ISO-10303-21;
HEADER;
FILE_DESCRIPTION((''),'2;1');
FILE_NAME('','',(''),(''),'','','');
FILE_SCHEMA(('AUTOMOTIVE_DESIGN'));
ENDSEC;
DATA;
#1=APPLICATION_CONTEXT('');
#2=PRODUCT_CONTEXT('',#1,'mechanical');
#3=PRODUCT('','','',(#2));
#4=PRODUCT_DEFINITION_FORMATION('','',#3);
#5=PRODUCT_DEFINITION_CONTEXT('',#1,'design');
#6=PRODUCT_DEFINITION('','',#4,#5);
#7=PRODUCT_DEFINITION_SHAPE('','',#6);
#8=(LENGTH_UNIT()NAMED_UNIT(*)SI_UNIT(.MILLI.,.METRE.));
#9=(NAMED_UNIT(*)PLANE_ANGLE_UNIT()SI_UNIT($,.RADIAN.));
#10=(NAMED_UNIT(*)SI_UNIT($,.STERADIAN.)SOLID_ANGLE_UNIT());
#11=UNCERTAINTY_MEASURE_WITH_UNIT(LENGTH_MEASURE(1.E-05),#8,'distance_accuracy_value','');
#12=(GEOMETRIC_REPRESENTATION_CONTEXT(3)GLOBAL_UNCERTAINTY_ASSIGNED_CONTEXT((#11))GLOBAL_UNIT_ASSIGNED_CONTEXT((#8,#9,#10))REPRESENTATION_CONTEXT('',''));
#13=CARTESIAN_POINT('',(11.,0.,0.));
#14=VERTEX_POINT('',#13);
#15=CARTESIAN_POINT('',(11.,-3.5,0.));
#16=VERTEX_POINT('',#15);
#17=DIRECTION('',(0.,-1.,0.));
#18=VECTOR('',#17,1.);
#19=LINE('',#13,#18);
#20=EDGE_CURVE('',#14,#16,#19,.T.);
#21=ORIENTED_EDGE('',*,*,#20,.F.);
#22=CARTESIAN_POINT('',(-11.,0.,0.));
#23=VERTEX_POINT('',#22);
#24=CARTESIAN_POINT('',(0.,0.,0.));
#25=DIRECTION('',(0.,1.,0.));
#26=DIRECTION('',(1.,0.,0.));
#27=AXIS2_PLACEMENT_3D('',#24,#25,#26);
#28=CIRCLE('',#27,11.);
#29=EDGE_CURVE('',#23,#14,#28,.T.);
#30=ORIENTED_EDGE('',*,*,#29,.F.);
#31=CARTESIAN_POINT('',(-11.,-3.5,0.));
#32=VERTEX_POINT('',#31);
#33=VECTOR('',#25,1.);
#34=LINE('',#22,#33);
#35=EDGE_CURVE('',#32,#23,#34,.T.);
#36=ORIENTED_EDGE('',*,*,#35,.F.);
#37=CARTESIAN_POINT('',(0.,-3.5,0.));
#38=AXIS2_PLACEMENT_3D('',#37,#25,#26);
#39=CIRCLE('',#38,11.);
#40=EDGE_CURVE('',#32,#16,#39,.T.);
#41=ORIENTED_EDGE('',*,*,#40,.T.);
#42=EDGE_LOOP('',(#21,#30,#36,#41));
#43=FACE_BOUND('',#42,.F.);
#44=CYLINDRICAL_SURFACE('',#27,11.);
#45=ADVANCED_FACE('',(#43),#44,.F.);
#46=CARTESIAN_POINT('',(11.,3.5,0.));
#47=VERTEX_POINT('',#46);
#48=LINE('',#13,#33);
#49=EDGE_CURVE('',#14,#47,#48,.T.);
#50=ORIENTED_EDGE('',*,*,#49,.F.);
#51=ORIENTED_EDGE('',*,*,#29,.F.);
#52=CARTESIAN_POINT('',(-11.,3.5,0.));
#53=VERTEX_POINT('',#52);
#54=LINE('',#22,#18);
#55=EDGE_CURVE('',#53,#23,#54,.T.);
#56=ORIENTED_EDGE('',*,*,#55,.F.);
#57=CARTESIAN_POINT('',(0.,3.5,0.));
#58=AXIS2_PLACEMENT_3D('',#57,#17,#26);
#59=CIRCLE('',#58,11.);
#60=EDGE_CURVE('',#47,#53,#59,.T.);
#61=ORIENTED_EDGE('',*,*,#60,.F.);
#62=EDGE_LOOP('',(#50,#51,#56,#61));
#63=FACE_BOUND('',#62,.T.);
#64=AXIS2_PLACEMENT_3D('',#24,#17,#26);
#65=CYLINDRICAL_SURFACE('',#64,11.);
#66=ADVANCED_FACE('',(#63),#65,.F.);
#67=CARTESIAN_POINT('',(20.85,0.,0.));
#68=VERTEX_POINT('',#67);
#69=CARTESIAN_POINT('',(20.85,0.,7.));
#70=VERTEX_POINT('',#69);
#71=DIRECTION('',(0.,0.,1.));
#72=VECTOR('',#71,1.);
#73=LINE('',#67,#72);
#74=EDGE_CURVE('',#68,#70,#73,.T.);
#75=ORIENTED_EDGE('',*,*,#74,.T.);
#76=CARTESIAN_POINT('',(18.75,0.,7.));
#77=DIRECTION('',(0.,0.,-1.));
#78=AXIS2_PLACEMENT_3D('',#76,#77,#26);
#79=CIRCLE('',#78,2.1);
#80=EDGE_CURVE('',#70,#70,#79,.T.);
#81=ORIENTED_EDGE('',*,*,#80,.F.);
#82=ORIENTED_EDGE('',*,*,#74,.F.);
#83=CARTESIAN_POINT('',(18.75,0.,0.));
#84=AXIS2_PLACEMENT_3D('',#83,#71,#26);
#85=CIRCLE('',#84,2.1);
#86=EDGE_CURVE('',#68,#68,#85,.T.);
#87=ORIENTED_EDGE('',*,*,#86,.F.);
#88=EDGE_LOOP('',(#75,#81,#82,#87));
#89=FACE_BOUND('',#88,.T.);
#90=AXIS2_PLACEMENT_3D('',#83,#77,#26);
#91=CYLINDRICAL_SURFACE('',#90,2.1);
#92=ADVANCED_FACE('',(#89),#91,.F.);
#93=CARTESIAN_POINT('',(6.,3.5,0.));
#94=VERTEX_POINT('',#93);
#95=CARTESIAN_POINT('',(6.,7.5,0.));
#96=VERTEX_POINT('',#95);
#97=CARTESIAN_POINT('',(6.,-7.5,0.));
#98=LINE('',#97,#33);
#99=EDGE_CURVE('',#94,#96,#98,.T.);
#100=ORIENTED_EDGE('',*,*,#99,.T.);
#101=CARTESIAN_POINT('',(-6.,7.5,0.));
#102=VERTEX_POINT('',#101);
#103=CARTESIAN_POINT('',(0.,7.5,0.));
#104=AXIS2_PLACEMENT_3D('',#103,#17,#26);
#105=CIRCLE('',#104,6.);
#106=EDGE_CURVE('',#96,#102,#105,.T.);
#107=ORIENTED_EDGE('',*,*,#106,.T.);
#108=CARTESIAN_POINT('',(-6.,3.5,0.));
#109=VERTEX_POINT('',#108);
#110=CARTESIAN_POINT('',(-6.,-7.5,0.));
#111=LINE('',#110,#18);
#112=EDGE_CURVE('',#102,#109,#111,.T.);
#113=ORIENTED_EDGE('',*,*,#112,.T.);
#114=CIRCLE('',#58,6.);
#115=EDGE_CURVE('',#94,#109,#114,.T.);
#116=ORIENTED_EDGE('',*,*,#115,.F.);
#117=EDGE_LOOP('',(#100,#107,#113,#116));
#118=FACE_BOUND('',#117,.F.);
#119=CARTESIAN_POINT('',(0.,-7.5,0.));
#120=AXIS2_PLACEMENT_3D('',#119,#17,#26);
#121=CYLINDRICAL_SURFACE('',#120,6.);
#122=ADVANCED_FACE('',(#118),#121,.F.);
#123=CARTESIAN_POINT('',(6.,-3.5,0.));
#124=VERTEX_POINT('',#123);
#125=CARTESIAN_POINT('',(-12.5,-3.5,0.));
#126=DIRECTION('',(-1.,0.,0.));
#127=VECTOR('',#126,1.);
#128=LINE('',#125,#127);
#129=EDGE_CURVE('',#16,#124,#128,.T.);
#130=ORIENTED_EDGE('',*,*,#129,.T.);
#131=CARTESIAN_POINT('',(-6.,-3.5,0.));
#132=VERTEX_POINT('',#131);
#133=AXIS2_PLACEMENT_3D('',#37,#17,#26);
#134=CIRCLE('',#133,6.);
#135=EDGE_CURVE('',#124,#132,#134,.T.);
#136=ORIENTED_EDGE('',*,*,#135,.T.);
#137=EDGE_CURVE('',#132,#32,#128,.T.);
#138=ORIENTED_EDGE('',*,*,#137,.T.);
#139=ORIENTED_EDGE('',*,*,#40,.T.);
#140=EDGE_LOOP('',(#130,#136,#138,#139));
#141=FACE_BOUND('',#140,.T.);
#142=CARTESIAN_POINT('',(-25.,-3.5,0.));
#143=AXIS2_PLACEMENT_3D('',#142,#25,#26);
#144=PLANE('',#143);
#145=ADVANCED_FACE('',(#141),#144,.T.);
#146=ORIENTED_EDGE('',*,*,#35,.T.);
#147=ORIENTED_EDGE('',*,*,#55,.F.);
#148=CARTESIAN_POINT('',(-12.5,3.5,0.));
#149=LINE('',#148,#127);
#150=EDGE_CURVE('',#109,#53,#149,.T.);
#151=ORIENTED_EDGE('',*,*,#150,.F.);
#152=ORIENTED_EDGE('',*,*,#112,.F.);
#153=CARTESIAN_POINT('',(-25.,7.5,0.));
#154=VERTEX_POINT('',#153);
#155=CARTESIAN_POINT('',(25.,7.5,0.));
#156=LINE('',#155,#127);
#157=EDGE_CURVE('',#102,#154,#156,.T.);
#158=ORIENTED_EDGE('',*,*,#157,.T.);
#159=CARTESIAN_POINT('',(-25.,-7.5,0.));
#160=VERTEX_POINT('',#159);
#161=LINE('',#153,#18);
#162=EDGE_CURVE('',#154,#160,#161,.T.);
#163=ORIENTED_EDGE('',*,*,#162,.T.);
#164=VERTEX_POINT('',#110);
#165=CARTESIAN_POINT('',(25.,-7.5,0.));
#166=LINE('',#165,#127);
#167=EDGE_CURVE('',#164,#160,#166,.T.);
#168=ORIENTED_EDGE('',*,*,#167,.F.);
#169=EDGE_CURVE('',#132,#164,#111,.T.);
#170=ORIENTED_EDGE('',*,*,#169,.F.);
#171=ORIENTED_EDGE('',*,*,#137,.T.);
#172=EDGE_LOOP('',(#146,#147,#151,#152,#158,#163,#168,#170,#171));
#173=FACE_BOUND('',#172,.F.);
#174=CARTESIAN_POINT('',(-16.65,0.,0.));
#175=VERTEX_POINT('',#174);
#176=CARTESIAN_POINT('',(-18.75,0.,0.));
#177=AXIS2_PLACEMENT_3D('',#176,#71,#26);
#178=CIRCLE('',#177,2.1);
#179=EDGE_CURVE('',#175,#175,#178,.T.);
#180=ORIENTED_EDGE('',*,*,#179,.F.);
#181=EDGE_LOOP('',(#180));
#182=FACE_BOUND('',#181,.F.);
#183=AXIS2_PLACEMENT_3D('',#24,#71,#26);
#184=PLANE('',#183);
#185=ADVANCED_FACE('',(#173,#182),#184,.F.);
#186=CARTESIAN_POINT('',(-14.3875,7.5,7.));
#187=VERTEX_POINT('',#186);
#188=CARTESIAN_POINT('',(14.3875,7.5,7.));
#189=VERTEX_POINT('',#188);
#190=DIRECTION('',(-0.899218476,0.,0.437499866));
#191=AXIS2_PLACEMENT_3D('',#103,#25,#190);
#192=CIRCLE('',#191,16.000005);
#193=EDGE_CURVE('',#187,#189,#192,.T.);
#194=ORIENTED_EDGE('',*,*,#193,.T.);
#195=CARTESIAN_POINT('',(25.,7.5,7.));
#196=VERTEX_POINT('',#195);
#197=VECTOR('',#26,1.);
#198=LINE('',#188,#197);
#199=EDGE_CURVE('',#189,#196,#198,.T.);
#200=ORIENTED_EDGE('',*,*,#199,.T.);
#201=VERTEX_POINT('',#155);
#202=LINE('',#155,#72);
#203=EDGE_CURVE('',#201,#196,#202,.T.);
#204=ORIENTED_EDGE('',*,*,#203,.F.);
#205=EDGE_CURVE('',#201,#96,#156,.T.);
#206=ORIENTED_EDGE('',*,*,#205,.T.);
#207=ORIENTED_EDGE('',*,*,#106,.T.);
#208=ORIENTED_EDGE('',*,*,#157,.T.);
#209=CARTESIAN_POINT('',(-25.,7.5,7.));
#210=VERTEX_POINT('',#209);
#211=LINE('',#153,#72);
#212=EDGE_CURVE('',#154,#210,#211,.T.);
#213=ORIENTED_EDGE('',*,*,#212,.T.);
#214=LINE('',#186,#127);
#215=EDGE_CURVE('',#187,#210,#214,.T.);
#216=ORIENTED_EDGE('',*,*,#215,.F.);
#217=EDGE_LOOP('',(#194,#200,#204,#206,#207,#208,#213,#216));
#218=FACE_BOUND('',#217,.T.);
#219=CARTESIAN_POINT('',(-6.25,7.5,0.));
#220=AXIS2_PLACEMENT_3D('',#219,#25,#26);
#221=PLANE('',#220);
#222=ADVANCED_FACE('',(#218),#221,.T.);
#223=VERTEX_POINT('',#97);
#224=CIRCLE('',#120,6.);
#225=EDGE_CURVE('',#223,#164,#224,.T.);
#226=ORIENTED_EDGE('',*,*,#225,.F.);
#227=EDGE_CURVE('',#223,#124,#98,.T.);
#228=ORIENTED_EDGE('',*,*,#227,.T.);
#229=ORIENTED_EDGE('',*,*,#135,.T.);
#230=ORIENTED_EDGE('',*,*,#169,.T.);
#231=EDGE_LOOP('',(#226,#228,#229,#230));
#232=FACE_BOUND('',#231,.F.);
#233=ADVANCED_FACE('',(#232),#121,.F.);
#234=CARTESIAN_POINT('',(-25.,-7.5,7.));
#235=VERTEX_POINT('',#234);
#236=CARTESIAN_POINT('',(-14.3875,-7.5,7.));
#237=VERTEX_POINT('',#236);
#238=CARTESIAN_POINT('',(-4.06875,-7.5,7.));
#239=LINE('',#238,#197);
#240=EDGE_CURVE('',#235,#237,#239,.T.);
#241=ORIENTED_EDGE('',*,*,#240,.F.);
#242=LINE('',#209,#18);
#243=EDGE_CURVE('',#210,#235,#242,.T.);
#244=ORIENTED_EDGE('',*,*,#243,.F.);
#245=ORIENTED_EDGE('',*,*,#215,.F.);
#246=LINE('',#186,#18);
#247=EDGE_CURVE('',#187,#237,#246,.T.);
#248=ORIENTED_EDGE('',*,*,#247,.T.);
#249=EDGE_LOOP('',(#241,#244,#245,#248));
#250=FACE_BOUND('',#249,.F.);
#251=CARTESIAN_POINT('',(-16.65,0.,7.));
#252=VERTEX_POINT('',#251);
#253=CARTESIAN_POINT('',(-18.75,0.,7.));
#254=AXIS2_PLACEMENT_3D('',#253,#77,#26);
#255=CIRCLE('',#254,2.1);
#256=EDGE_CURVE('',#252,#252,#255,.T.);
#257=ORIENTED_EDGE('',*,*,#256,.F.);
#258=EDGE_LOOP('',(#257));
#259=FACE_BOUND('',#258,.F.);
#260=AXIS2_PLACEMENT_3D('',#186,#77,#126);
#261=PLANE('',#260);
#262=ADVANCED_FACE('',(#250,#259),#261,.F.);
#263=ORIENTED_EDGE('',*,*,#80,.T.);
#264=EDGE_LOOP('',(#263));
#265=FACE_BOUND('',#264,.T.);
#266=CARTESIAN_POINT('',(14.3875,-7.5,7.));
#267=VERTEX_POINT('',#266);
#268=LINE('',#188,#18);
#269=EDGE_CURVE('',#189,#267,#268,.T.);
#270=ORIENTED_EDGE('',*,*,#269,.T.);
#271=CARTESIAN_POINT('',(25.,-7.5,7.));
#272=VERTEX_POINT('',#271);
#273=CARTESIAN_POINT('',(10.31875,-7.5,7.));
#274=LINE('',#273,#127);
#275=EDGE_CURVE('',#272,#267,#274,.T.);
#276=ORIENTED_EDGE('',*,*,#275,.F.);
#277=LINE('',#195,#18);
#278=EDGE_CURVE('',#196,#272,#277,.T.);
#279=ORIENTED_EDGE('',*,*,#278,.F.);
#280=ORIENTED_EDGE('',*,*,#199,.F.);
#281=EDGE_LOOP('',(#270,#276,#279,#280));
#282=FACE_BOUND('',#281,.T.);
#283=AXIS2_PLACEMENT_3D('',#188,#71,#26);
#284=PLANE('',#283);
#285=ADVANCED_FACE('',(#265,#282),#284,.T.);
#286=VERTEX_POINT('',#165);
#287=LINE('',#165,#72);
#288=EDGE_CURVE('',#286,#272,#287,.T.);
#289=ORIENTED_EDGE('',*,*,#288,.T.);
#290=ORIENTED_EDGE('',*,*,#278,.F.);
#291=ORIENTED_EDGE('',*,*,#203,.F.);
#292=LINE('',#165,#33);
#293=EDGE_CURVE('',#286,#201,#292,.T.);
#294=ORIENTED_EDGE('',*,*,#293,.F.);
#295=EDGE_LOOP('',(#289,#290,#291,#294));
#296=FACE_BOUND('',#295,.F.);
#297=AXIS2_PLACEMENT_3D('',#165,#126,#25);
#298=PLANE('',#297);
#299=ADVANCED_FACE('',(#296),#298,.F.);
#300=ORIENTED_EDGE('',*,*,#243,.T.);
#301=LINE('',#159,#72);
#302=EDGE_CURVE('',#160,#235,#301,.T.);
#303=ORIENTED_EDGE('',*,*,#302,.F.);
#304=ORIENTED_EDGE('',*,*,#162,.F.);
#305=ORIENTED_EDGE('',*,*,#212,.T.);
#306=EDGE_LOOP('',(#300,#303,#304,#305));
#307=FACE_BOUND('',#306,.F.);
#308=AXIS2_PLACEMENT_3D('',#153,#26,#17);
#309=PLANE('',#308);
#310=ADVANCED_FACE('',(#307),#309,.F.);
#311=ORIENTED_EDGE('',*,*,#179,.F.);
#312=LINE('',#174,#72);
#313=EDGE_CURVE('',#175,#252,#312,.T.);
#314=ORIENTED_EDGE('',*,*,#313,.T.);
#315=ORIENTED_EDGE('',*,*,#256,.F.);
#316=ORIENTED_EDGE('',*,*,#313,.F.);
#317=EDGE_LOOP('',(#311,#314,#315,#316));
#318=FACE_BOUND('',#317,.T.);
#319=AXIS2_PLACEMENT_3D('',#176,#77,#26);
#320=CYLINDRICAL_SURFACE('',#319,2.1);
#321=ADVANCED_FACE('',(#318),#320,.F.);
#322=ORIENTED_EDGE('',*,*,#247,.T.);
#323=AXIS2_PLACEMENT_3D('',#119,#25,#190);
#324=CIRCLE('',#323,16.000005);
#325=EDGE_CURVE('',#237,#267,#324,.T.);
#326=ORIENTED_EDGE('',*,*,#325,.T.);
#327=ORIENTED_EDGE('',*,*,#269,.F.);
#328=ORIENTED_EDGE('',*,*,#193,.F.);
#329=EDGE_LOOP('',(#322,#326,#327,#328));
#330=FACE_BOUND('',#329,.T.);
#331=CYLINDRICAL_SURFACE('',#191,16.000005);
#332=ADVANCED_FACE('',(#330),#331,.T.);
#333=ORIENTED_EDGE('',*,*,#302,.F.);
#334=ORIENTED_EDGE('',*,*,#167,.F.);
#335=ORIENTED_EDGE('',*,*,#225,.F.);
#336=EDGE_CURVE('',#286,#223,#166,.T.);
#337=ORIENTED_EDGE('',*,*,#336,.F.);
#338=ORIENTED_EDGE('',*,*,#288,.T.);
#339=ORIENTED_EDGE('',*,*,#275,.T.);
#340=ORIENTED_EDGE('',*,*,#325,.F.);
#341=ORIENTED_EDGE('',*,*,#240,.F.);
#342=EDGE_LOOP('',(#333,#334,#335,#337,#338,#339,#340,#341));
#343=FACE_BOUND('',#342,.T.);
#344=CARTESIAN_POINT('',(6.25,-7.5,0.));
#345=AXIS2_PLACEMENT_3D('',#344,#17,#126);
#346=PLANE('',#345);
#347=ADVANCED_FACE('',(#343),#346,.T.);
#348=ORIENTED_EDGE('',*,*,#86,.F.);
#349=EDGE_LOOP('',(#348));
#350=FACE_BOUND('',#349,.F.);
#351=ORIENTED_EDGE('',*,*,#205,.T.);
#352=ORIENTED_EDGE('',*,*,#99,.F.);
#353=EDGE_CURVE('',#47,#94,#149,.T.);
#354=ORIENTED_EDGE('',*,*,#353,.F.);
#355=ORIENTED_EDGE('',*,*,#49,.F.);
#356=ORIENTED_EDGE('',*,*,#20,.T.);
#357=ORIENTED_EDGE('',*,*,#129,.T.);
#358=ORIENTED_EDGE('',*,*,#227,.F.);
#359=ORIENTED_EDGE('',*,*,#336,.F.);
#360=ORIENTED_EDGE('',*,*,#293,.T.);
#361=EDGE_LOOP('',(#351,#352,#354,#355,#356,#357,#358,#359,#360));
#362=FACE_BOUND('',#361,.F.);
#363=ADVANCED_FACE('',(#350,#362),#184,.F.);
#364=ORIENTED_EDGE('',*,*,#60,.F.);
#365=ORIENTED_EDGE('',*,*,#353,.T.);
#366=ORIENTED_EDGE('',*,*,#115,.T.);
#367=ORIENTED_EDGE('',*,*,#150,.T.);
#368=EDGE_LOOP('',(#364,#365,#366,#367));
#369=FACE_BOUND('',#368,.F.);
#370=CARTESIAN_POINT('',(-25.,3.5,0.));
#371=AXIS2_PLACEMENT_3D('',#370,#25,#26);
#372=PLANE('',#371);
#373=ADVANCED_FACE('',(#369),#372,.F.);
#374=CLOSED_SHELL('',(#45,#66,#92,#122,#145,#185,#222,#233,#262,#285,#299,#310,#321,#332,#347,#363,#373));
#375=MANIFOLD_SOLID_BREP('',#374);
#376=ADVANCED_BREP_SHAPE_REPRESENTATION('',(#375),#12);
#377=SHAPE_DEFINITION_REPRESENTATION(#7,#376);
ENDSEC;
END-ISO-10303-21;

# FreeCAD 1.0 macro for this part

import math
import FreeCAD as App
import Part
import Sketcher


def add_polygon(sketch, points):
    """Adds a closed chain of lines whose ends are joined by coincident constraints."""
    first, n = sketch.GeometryCount, len(points)
    for a, b in zip(points, points[1:] + points[:1]):
        sketch.addGeometry(Part.LineSegment(App.Vector(*a, 0), App.Vector(*b, 0)), False)
    for i in range(n):
        sketch.addConstraint(Sketcher.Constraint("Coincident", first + i, 2, first + (i + 1) % n, 1))

doc = App.newDocument("Part")
body = doc.addObject("PartDesign::Body", "Body")

# Sketch on XY plane
sketch1 = doc.addObject("Sketcher::SketchObject", "Sketch")
body.addObject(sketch1)
sketch1.AttachmentSupport = (doc.XY_Plane, [""])
sketch1.MapMode = "FlatFace"
add_polygon(sketch1, [(-25, 7.5), (-25, -7.5), (25, -7.5), (25, 7.5)])  # lines 0-3
sketch1.addGeometry(Part.Circle(App.Vector(18.8, 0, 0), App.Vector(0, 0, 1), 2.1), False)  # 4
sketch1.addGeometry(Part.Circle(App.Vector(-18.8, 0, 0), App.Vector(0, 0, 1), 2.1), False)  # 5
sketch1.addConstraint(Sketcher.Constraint("Vertical", 0))
sketch1.addConstraint(Sketcher.Constraint("Horizontal", 1))
sketch1.addConstraint(Sketcher.Constraint("Vertical", 2))
sketch1.addConstraint(Sketcher.Constraint("Horizontal", 3))
sketch1.addConstraint(Sketcher.Constraint("Equal", 4, 5))
sketch1.addConstraint(Sketcher.Constraint("Symmetric", 4, 3, 5, 3, -1, 1))
sketch1.addConstraint(Sketcher.Constraint("Symmetric", 0, 2, 2, 2, -1, 1))
sketch1.addConstraint(Sketcher.Constraint("PointOnObject", 4, 3, -1))
sketch1.addConstraint(Sketcher.Constraint("Diameter", 4, 4.2))
sketch1.addConstraint(Sketcher.Constraint("DistanceX", 1, 1, 1, 2, 50.0))
sketch1.addConstraint(Sketcher.Constraint("DistanceY", 0, 2, 0, 1, 15.0))
sketch1.addConstraint(Sketcher.Constraint("DistanceX", 5, 3, 4, 3, 37.5))
pad1 = doc.addObject("PartDesign::Pad", "Pad")
body.addObject(pad1)
pad1.Profile = sketch1
pad1.Length = 16

# Sketch on XZ plane
sketch2 = doc.addObject("Sketcher::SketchObject", "Sketch001")
body.addObject(sketch2)
sketch2.AttachmentSupport = (doc.XZ_Plane, [""])
sketch2.MapMode = "FlatFace"
sketch2.addGeometry(Part.Circle(App.Vector(0, 0, 0), App.Vector(0, 0, 1), 11), False)
sketch2.addConstraint(Sketcher.Constraint("Coincident", 0, 3, -1, 1))
sketch2.addConstraint(Sketcher.Constraint("Diameter", 0, 22.0))
pocket1 = doc.addObject("PartDesign::Pocket", "Pocket")
body.addObject(pocket1)
pocket1.Profile = sketch2
pocket1.Length = 7
pocket1.Midplane = True

# Sketch on XZ plane
sketch3 = doc.addObject("Sketcher::SketchObject", "Sketch002")
body.addObject(sketch3)
sketch3.AttachmentSupport = (doc.XZ_Plane, [""])
sketch3.MapMode = "FlatFace"
sketch3.AttachmentOffset = App.Placement(App.Vector(0, 0, -7.5), App.Rotation())
sketch3.addGeometry(Part.LineSegment(App.Vector(25, 16, 0), App.Vector(25, 7, 0)), False)
sketch3.addGeometry(Part.LineSegment(App.Vector(25, 7, 0), App.Vector(14, 7, 0)), False)
sketch3.addGeometry(Part.ArcOfCircle(Part.Circle(App.Vector(0, 0, 0), App.Vector(0, 0, 1), 16), math.radians(26), math.radians(90)), False)
sketch3.addGeometry(Part.LineSegment(App.Vector(0, 16, 0), App.Vector(25, 16, 0)), False)
sketch3.addGeometry(Part.LineSegment(App.Vector(-25, 16, 0), App.Vector(0, 16, 0)), False)
sketch3.addGeometry(Part.ArcOfCircle(Part.Circle(App.Vector(0, 0, 0), App.Vector(0, 0, 1), 16), math.radians(90), math.radians(154)), False)
sketch3.addGeometry(Part.LineSegment(App.Vector(-14, 7, 0), App.Vector(-25, 7, 0)), False)
sketch3.addGeometry(Part.LineSegment(App.Vector(-25, 7, 0), App.Vector(-25, 16, 0)), False)
sketch3.addConstraint(Sketcher.Constraint("Coincident", 0, 2, 1, 1))
sketch3.addConstraint(Sketcher.Constraint("Coincident", 1, 2, 2, 1))
sketch3.addConstraint(Sketcher.Constraint("Tangent", 2, 2, 3, 1))
sketch3.addConstraint(Sketcher.Constraint("Coincident", 3, 2, 0, 1))
sketch3.addConstraint(Sketcher.Constraint("Tangent", 4, 2, 5, 1))
sketch3.addConstraint(Sketcher.Constraint("Coincident", 5, 2, 6, 1))
sketch3.addConstraint(Sketcher.Constraint("Coincident", 6, 2, 7, 1))
sketch3.addConstraint(Sketcher.Constraint("Coincident", 7, 2, 4, 1))
sketch3.addConstraint(Sketcher.Constraint("Vertical", 0))
sketch3.addConstraint(Sketcher.Constraint("Horizontal", 1))
sketch3.addConstraint(Sketcher.Constraint("Horizontal", 3))
sketch3.addConstraint(Sketcher.Constraint("Horizontal", 4))
sketch3.addConstraint(Sketcher.Constraint("Horizontal", 6))
sketch3.addConstraint(Sketcher.Constraint("Vertical", 7))
sketch3.addConstraint(Sketcher.Constraint("Coincident", 2, 3, -1, 1))
sketch3.addConstraint(Sketcher.Constraint("Coincident", 5, 3, -1, 1))
sketch3.addConstraint(Sketcher.Constraint("Equal", 2, 5))
sketch3.addConstraint(Sketcher.Constraint("Symmetric", 0, 2, 6, 2, -2))
sketch3.addConstraint(Sketcher.Constraint("DistanceY", -1, 1, 0, 2, 7.0))
sketch3.addConstraint(Sketcher.Constraint("Radius", 2, 16.0))
sketch3.addConstraint(Sketcher.Constraint("DistanceX", 3, 1, 3, 2, 25.0))
pocket2 = doc.addObject("PartDesign::Pocket", "Pocket001")
body.addObject(pocket2)
pocket2.Profile = sketch3
pocket2.Type = "ThroughAll"
pocket2.Reversed = True

# Sketch on XZ plane
sketch4 = doc.addObject("Sketcher::SketchObject", "Sketch003")
body.addObject(sketch4)
sketch4.AttachmentSupport = (doc.XZ_Plane, [""])
sketch4.MapMode = "FlatFace"
sketch4.AttachmentOffset = App.Placement(App.Vector(0, 0, 7.5), App.Rotation())
sketch4.addGeometry(Part.Circle(App.Vector(0, 0, 0), App.Vector(0, 0, 1), 6), False)
sketch4.addConstraint(Sketcher.Constraint("Coincident", 0, 3, -1, 1))
sketch4.addConstraint(Sketcher.Constraint("Diameter", 0, 12.0))
pocket3 = doc.addObject("PartDesign::Pocket", "Pocket002")
body.addObject(pocket3)
pocket3.Profile = sketch4
pocket3.Type = "ThroughAll"

doc.recompute()
